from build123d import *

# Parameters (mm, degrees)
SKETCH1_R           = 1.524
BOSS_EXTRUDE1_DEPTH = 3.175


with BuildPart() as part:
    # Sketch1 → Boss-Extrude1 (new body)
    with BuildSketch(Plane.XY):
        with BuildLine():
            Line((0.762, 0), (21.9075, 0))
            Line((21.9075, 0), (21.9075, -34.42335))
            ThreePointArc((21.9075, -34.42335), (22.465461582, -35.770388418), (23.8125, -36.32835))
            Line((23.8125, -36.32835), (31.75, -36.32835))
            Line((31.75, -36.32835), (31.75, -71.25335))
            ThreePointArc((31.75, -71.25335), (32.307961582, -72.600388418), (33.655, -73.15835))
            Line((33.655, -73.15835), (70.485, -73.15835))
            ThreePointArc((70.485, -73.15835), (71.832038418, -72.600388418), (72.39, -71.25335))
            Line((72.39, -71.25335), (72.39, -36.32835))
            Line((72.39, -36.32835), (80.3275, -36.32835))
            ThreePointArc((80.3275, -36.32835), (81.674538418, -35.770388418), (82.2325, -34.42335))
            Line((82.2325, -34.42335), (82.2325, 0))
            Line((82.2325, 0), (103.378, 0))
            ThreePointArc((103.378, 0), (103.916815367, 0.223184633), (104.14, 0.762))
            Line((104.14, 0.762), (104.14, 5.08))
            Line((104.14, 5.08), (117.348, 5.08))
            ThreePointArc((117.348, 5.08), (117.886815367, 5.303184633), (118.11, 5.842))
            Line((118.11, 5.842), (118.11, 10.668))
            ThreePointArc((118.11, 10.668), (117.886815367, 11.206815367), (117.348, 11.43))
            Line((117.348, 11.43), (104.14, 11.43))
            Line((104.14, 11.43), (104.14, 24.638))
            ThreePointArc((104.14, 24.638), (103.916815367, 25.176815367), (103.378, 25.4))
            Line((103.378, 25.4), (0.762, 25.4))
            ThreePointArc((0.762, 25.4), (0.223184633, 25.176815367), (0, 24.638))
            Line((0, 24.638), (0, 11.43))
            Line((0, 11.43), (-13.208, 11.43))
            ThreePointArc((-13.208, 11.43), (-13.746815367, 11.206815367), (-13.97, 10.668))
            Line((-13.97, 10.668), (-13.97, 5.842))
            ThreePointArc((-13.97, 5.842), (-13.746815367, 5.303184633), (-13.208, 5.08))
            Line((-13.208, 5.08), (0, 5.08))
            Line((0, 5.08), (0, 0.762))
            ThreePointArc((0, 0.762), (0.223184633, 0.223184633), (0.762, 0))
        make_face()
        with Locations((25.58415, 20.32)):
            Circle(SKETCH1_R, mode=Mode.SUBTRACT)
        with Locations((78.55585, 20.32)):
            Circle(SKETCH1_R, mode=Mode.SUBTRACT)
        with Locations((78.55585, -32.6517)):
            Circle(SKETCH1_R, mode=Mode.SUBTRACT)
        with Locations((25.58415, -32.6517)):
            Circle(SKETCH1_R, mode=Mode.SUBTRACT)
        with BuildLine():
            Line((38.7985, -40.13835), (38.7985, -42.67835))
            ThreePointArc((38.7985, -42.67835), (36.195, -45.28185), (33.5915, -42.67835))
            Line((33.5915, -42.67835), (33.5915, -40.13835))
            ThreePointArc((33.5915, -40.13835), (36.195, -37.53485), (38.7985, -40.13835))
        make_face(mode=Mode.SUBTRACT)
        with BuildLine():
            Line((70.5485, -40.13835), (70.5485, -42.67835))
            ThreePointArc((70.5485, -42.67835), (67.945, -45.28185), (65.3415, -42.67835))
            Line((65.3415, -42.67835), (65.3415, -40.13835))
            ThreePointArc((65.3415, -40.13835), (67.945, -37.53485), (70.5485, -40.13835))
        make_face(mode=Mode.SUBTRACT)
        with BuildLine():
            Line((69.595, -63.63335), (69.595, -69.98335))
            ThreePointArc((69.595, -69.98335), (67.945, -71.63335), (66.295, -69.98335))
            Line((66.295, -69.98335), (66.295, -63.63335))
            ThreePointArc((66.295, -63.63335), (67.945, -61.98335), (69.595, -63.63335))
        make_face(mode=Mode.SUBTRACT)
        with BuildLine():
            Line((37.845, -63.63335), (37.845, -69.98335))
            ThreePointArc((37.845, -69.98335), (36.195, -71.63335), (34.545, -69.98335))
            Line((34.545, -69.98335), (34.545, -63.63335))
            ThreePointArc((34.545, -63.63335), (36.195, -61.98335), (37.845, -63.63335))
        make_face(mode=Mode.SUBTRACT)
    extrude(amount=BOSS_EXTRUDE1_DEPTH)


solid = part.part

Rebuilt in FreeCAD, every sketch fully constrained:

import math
import FreeCAD as App
import Part
import Sketcher
from FreeCAD import Vector
Q = App.Units.Quantity

doc = App.newDocument("Part")
params = doc.addObject("Spreadsheet::Sheet", "Params")
for row, (alias, value) in enumerate([
    ("sketch1_diameter", "0.12 in"),
    ("sketch1_radius", "0.03 in"),
    ("sketch1_height", "0.1 in"),
    ("sketch1_radius2", "0.075 in"),
    ("sketch1_width", "1.45 in"),
    ("pad1_length", "0.125 in"),
], start=1):
    params.set(f"A{row}", alias)
    params.set(f"B{row}", "=" + value)
    params.setAlias(f"B{row}", alias)

body = doc.addObject("PartDesign::Body", "Body")

sketch1 = body.newObject("Sketcher::SketchObject", "Sketch")
sketch1.AttachmentSupport = (doc.getObject("XY_Plane"), [""])
sketch1.MapMode = "FlatFace"
sketch1.addGeometry([
    Part.LineSegment(Vector(0.762, 0, 0), Vector(21.9075, 0, 0)),
    Part.LineSegment(Vector(21.9075, 0, 0), Vector(21.9075, -34.42335, 0)),
    Part.ArcOfCircle(Part.Circle(Vector(23.8125, -34.42335, 0), Vector(0, 0, 1), 1.905), math.radians(-180), math.radians(-90)),
    Part.LineSegment(Vector(23.8125, -36.32835, 0), Vector(31.75, -36.32835, 0)),
    Part.LineSegment(Vector(31.75, -36.32835, 0), Vector(31.75, -71.25335, 0)),
    Part.ArcOfCircle(Part.Circle(Vector(33.655, -71.25335, 0), Vector(0, 0, 1), 1.905), math.radians(-180), math.radians(-90)),
    Part.LineSegment(Vector(33.655, -73.15835, 0), Vector(70.485, -73.15835, 0)),
    Part.ArcOfCircle(Part.Circle(Vector(70.485, -71.25335, 0), Vector(0, 0, 1), 1.905), math.radians(-90), math.radians(0)),
    Part.LineSegment(Vector(72.39, -71.25335, 0), Vector(72.39, -36.32835, 0)),
    Part.LineSegment(Vector(72.39, -36.32835, 0), Vector(80.3275, -36.32835, 0)),
    Part.ArcOfCircle(Part.Circle(Vector(80.3275, -34.42335, 0), Vector(0, 0, 1), 1.905), math.radians(-90), math.radians(0)),
    Part.LineSegment(Vector(82.2325, -34.42335, 0), Vector(82.2325, 0, 0)),
    Part.LineSegment(Vector(82.2325, 0, 0), Vector(103.378, 0, 0)),
    Part.ArcOfCircle(Part.Circle(Vector(103.378, 0.762, 0), Vector(0, 0, 1), 0.762), math.radians(-90), math.radians(0)),
    Part.LineSegment(Vector(104.14, 0.762, 0), Vector(104.14, 5.08, 0)),
    Part.LineSegment(Vector(104.14, 5.08, 0), Vector(117.348, 5.08, 0)),
    Part.ArcOfCircle(Part.Circle(Vector(117.348, 5.842, 0), Vector(0, 0, 1), 0.762), math.radians(-90), math.radians(0)),
    Part.LineSegment(Vector(118.11, 5.842, 0), Vector(118.11, 10.668, 0)),
    Part.ArcOfCircle(Part.Circle(Vector(117.348, 10.668, 0), Vector(0, 0, 1), 0.762), math.radians(0), math.radians(90)),
    Part.LineSegment(Vector(117.348, 11.43, 0), Vector(104.14, 11.43, 0)),
    Part.LineSegment(Vector(104.14, 11.43, 0), Vector(104.14, 24.638, 0)),
    Part.ArcOfCircle(Part.Circle(Vector(103.378, 24.638, 0), Vector(0, 0, 1), 0.762), math.radians(0), math.radians(90)),
    Part.LineSegment(Vector(103.378, 25.4, 0), Vector(0.762, 25.4, 0)),
    Part.ArcOfCircle(Part.Circle(Vector(0.762, 24.638, 0), Vector(0, 0, 1), 0.762), math.radians(90), math.radians(180)),
    Part.LineSegment(Vector(0, 24.638, 0), Vector(0, 11.43, 0)),
    Part.LineSegment(Vector(0, 11.43, 0), Vector(-13.208, 11.43, 0)),
    Part.ArcOfCircle(Part.Circle(Vector(-13.208, 10.668, 0), Vector(0, 0, 1), 0.762), math.radians(90), math.radians(180)),
    Part.LineSegment(Vector(-13.97, 10.668, 0), Vector(-13.97, 5.842, 0)),
    Part.ArcOfCircle(Part.Circle(Vector(-13.208, 5.842, 0), Vector(0, 0, 1), 0.762), math.radians(-180), math.radians(-90)),
    Part.LineSegment(Vector(-13.208, 5.08, 0), Vector(0, 5.08, 0)),
    Part.LineSegment(Vector(0, 5.08, 0), Vector(0, 0.762, 0)),
    Part.ArcOfCircle(Part.Circle(Vector(0.762, 0.762, 0), Vector(0, 0, 1), 0.762), math.radians(-180), math.radians(-90)),
    Part.ArcOfCircle(Part.Circle(Vector(36.195, -63.63335, 0), Vector(0, 0, 1), 1.65), math.radians(0), math.radians(180)),
    Part.LineSegment(Vector(37.845, -63.63335, 0), Vector(37.845, -69.98335, 0)),
    Part.ArcOfCircle(Part.Circle(Vector(36.195, -69.98335, 0), Vector(0, 0, 1), 1.65), math.radians(180), math.radians(360)),
    Part.LineSegment(Vector(34.545, -69.98335, 0), Vector(34.545, -63.63335, 0)),
    Part.ArcOfCircle(Part.Circle(Vector(36.195, -40.13835, 0), Vector(0, 0, 1), 2.6035), math.radians(0), math.radians(180)),
    Part.LineSegment(Vector(38.7985, -40.13835, 0), Vector(38.7985, -42.67835, 0)),
    Part.ArcOfCircle(Part.Circle(Vector(36.195, -42.67835, 0), Vector(0, 0, 1), 2.6035), math.radians(180), math.radians(360)),
    Part.LineSegment(Vector(33.5915, -42.67835, 0), Vector(33.5915, -40.13835, 0)),
    Part.Circle(Vector(25.58415, -32.6517, 0), Vector(0, 0, 1), 1.524),
    Part.ArcOfCircle(Part.Circle(Vector(67.945, -63.63335, 0), Vector(0, 0, 1), 1.65), math.radians(0), math.radians(180)),
    Part.LineSegment(Vector(69.595, -63.63335, 0), Vector(69.595, -69.98335, 0)),
    Part.ArcOfCircle(Part.Circle(Vector(67.945, -69.98335, 0), Vector(0, 0, 1), 1.65), math.radians(180), math.radians(360)),
    Part.LineSegment(Vector(66.295, -69.98335, 0), Vector(66.295, -63.63335, 0)),
    Part.ArcOfCircle(Part.Circle(Vector(67.945, -40.13835, 0), Vector(0, 0, 1), 2.6035), math.radians(0), math.radians(180)),
    Part.LineSegment(Vector(70.5485, -40.13835, 0), Vector(70.5485, -42.67835, 0)),
    Part.ArcOfCircle(Part.Circle(Vector(67.945, -42.67835, 0), Vector(0, 0, 1), 2.6035), math.radians(180), math.radians(360)),
    Part.LineSegment(Vector(65.3415, -42.67835, 0), Vector(65.3415, -40.13835, 0)),
    Part.Circle(Vector(78.55585, -32.6517, 0), Vector(0, 0, 1), 1.524),
    Part.Circle(Vector(25.58415, 20.32, 0), Vector(0, 0, 1), 1.524),
    Part.Circle(Vector(78.55585, 20.32, 0), Vector(0, 0, 1), 1.524),
], False)
sketch1.addConstraint([
    Sketcher.Constraint("Coincident", 0, 2, 1, 1),
    Sketcher.Constraint("Tangent", 1, 2, 2, 1),
    Sketcher.Constraint("Tangent", 2, 2, 3, 1),
    Sketcher.Constraint("Coincident", 3, 2, 4, 1),
    Sketcher.Constraint("Tangent", 4, 2, 5, 1),
    Sketcher.Constraint("Tangent", 5, 2, 6, 1),
    Sketcher.Constraint("Tangent", 6, 2, 7, 1),
    Sketcher.Constraint("Tangent", 7, 2, 8, 1),
    Sketcher.Constraint("Coincident", 8, 2, 9, 1),
    Sketcher.Constraint("Tangent", 9, 2, 10, 1),
    Sketcher.Constraint("Tangent", 10, 2, 11, 1),
    Sketcher.Constraint("Coincident", 11, 2, 12, 1),
    Sketcher.Constraint("Tangent", 12, 2, 13, 1),
    Sketcher.Constraint("Tangent", 13, 2, 14, 1),
    Sketcher.Constraint("Coincident", 14, 2, 15, 1),
    Sketcher.Constraint("Tangent", 15, 2, 16, 1),
    Sketcher.Constraint("Tangent", 16, 2, 17, 1),
    Sketcher.Constraint("Tangent", 17, 2, 18, 1),
    Sketcher.Constraint("Tangent", 18, 2, 19, 1),
    Sketcher.Constraint("Coincident", 19, 2, 20, 1),
    Sketcher.Constraint("Tangent", 20, 2, 21, 1),
    Sketcher.Constraint("Tangent", 21, 2, 22, 1),
    Sketcher.Constraint("Tangent", 22, 2, 23, 1),
    Sketcher.Constraint("Tangent", 23, 2, 24, 1),
    Sketcher.Constraint("Coincident", 24, 2, 25, 1),
    Sketcher.Constraint("Tangent", 25, 2, 26, 1),
    Sketcher.Constraint("Tangent", 26, 2, 27, 1),
    Sketcher.Constraint("Tangent", 27, 2, 28, 1),
    Sketcher.Constraint("Tangent", 28, 2, 29, 1),
    Sketcher.Constraint("Coincident", 29, 2, 30, 1),
    Sketcher.Constraint("Tangent", 30, 2, 31, 1),
    Sketcher.Constraint("Tangent", 31, 2, 0, 1),
    Sketcher.Constraint("Tangent", 32, 1, 33, 1),
    Sketcher.Constraint("Tangent", 33, 2, 34, 2),
    Sketcher.Constraint("Tangent", 34, 1, 35, 1),
    Sketcher.Constraint("Tangent", 35, 2, 32, 2),
    Sketcher.Constraint("Tangent", 36, 1, 37, 1),
    Sketcher.Constraint("Tangent", 37, 2, 38, 2),
    Sketcher.Constraint("Tangent", 38, 1, 39, 1),
    Sketcher.Constraint("Tangent", 39, 2, 36, 2),
    Sketcher.Constraint("Tangent", 41, 1, 42, 1),
    Sketcher.Constraint("Tangent", 42, 2, 43, 2),
    Sketcher.Constraint("Tangent", 43, 1, 44, 1),
    Sketcher.Constraint("Tangent", 44, 2, 41, 2),
    Sketcher.Constraint("Tangent", 45, 1, 46, 1),
    Sketcher.Constraint("Tangent", 46, 2, 47, 2),
    Sketcher.Constraint("Tangent", 47, 1, 48, 1),
    Sketcher.Constraint("Tangent", 48, 2, 45, 2),
    Sketcher.Constraint("Horizontal", 0),
    Sketcher.Constraint("Vertical", 1),
    Sketcher.Constraint("Horizontal", 3),
    Sketcher.Constraint("Vertical", 4),
    Sketcher.Constraint("Horizontal", 6),
    Sketcher.Constraint("Vertical", 8),
    Sketcher.Constraint("Horizontal", 9),
    Sketcher.Constraint("Vertical", 11),
    Sketcher.Constraint("Horizontal", 12),
    Sketcher.Constraint("Vertical", 14),
    Sketcher.Constraint("Horizontal", 15),
    Sketcher.Constraint("Vertical", 17),
    Sketcher.Constraint("Horizontal", 19),
    Sketcher.Constraint("Vertical", 20),
    Sketcher.Constraint("Horizontal", 22),
    Sketcher.Constraint("Vertical", 24),
    Sketcher.Constraint("Horizontal", 25),
    Sketcher.Constraint("Vertical", 27),
    Sketcher.Constraint("Horizontal", 29),
    Sketcher.Constraint("Vertical", 30),
    Sketcher.Constraint("Vertical", 33),
    Sketcher.Constraint("Vertical", 35),
    Sketcher.Constraint("Vertical", 37),
    Sketcher.Constraint("Vertical", 39),
    Sketcher.Constraint("Vertical", 42),
    Sketcher.Constraint("Vertical", 44),
    Sketcher.Constraint("Vertical", 46),
    Sketcher.Constraint("Vertical", 48),
    Sketcher.Constraint("Equal", 2, 5),
    Sketcher.Constraint("Equal", 5, 7),
    Sketcher.Constraint("Equal", 7, 10),
    Sketcher.Constraint("Equal", 13, 16),
    Sketcher.Constraint("Equal", 16, 18),
    Sketcher.Constraint("Equal", 18, 21),
    Sketcher.Constraint("Equal", 21, 23),
    Sketcher.Constraint("Equal", 23, 26),
    Sketcher.Constraint("Equal", 26, 28),
    Sketcher.Constraint("Equal", 28, 31),
    Sketcher.Constraint("Equal", 34, 41),
    Sketcher.Constraint("Equal", 38, 45),
    Sketcher.Constraint("Equal", 40, 49),
    Sketcher.Constraint("Equal", 49, 50),
    Sketcher.Constraint("Equal", 50, 51),
    Sketcher.Constraint("PointOnObject", 0, 2, -1),
    Sketcher.Constraint("PointOnObject", 11, 2, -1),
    Sketcher.Constraint("PointOnObject", 23, 2, -2),
    Sketcher.Constraint("PointOnObject", 29, 2, -2),
    Sketcher.Constraint("Horizontal", 2, 3, 10, 3),
    Sketcher.Constraint("Horizontal", 18, 3, 26, 3),
    Sketcher.Constraint("Horizontal", 16, 3, 28, 3),
    Sketcher.Constraint("Horizontal", 32, 3, 41, 3),
    Sketcher.Constraint("Horizontal", 34, 3, 43, 3),
    Sketcher.Constraint("Horizontal", 36, 3, 45, 3),
    Sketcher.Constraint("Horizontal", 38, 3, 47, 3),
    Sketcher.Constraint("Horizontal", 40, 3, 49, 3),
    Sketcher.Constraint("Horizontal", 50, 3, 51, 3),
    Sketcher.Constraint("Vertical", 13, 3, 21, 3),
    Sketcher.Constraint("Vertical", 34, 3, 36, 3),
    Sketcher.Constraint("Vertical", 43, 3, 45, 3),
    Sketcher.Constraint("Vertical", 40, 3, 50, 3),
    Sketcher.Constraint("Vertical", 49, 3, 51, 3),
    Sketcher.Constraint("Equal", 3, 9),
    Sketcher.Constraint("Equal", 0, 12),
    Sketcher.Constraint("Equal", 19, 25),
    Sketcher.Constraint("Equal", 29, 20),
    Sketcher.Constraint("Diameter", 40, Q("0.12 in")),
    Sketcher.Constraint("Radius", 13, Q("0.03 in")),
    Sketcher.Constraint("DistanceY", 37, 2, 37, 1, Q("0.1 in")),
    Sketcher.Constraint("DistanceY", -1, 1, 21, 2, Q("1 in")),
    Sketcher.Constraint("Radius", 2, Q("0.075 in")),
    Sketcher.Constraint("DistanceX", 6, 1, 6, 2, Q("1.45 in")),
    Sketcher.Constraint("DistanceX", 15, 1, 15, 2, Q("0.52 in")),
    Sketcher.Constraint("DistanceX", 22, 2, 22, 1, Q("4.04 in")),
    Sketcher.Constraint("DistanceY", 14, 1, 14, 2, Q("0.17 in")),
    Sketcher.Constraint("DistanceY", 33, 2, 33, 1, Q("0.25 in")),
    Sketcher.Constraint("DistanceY", -1, 1, 50, 3, Q("0.8 in")),
    Sketcher.Constraint("Radius", 36, Q("0.1025 in")),
    Sketcher.Constraint("DistanceX", 3, 1, 3, 2, Q("0.3125 in")),
    Sketcher.Constraint("DistanceY", 4, 2, 4, 1, Q("1.375 in")),
    Sketcher.Constraint("Radius", 32, Q("1.65 mm")),
    Sketcher.Constraint("DistanceX", -1, 1, 32, 3, Q("1.425 in")),
    Sketcher.Constraint("DistanceX", -1, 1, 41, 3, Q("2.675 in")),
    Sketcher.Constraint("DistanceY", 40, 3, -1, 1, Q("1.2855 in")),
    Sketcher.Constraint("DistanceY", 1, 2, 1, 1, Q("34.42335 mm")),
    Sketcher.Constraint("DistanceY", 32, 3, -1, 1, Q("63.63335 mm")),
    Sketcher.Constraint("DistanceY", 36, 3, -1, 1, Q("40.13835 mm")),
    Sketcher.Constraint("DistanceX", -1, 1, 40, 3, Q("25.58415 mm")),
    Sketcher.Constraint("DistanceX", -1, 1, 49, 3, Q("78.55585 mm")),
])
sketch1.setExpression("Constraints[113]", "Params.sketch1_diameter")
sketch1.setExpression("Constraints[114]", "Params.sketch1_radius")
sketch1.setExpression("Constraints[115]", "Params.sketch1_height")
sketch1.setExpression("Constraints[117]", "Params.sketch1_radius2")
sketch1.setExpression("Constraints[118]", "Params.sketch1_width")
pad1 = body.newObject("PartDesign::Pad", "Pad")
pad1.Profile = sketch1
pad1.setExpression("Length", "Params.pad1_length")

doc.recompute()
